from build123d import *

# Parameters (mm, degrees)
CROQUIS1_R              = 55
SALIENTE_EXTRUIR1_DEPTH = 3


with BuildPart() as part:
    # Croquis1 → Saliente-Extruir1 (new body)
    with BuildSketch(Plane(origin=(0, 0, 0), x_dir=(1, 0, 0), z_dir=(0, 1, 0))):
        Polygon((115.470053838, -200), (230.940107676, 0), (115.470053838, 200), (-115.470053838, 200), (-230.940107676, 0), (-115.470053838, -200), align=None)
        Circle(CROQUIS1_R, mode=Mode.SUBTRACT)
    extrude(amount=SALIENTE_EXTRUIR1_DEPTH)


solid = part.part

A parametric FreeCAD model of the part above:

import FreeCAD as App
import Part
import Sketcher

V = App.Vector
Q = App.Units.Quantity

doc = App.newDocument("Part")
body = doc.addObject("PartDesign::Body", "Body")

# Sketch on XZ plane
sketch1 = body.newObject("Sketcher::SketchObject", "Sketch")
sketch1.AttachmentSupport = (doc.getObject("XZ_Plane"), [""])
sketch1.MapMode = "FlatFace"
sketch1.addGeometry([
    Part.LineSegment(V(115, 200, 0), V(231, 0, 0)),  # 0
    Part.LineSegment(V(231, 0, 0), V(115, -200, 0)),  # 1
    Part.LineSegment(V(115, -200, 0), V(-115, -200, 0)),  # 2
    Part.LineSegment(V(-115, -200, 0), V(-231, 0, 0)),  # 3
    Part.LineSegment(V(-231, 0, 0), V(-115, 200, 0)),  # 4
    Part.LineSegment(V(-115, 200, 0), V(115, 200, 0)),  # 5
    Part.Circle(V(0, 0, 0), V(0, 0, 1), 55),  # 6
], False)
sketch1.addConstraint([
    Sketcher.Constraint("Coincident", 0, 2, 1, 1),
    Sketcher.Constraint("Coincident", 1, 2, 2, 1),
    Sketcher.Constraint("Coincident", 2, 2, 3, 1),
    Sketcher.Constraint("Coincident", 3, 2, 4, 1),
    Sketcher.Constraint("Coincident", 4, 2, 5, 1),
    Sketcher.Constraint("Coincident", 5, 2, 0, 1),
    Sketcher.Constraint("Horizontal", 2),
    Sketcher.Constraint("Horizontal", 5),
    Sketcher.Constraint("Coincident", 6, 3, -1, 1),
    Sketcher.Constraint("Symmetric", 0, 2, 3, 2, -1, 1),
    Sketcher.Constraint("Symmetric", 1, 2, 4, 2, -1, 1),
    Sketcher.Constraint("PointOnObject", 0, 2, -1),
    Sketcher.Constraint("Parallel", 0, 3),
    Sketcher.Constraint("Vertical", 2, 2, 4, 2),
    Sketcher.Constraint("Diameter", 6, 110.0),
    Sketcher.Constraint("Angle", 0, Q("-60 deg")),
    Sketcher.Constraint("DistanceY", 1, 2, -1, 1, 200.0),
    Sketcher.Constraint("DistanceX", 2, 2, 2, 1, 230.940108),
])
pad1 = body.newObject("PartDesign::Pad", "Pad")
pad1.Profile = sketch1
pad1.Length = 3
pad1.Reversed = True

doc.recompute()
